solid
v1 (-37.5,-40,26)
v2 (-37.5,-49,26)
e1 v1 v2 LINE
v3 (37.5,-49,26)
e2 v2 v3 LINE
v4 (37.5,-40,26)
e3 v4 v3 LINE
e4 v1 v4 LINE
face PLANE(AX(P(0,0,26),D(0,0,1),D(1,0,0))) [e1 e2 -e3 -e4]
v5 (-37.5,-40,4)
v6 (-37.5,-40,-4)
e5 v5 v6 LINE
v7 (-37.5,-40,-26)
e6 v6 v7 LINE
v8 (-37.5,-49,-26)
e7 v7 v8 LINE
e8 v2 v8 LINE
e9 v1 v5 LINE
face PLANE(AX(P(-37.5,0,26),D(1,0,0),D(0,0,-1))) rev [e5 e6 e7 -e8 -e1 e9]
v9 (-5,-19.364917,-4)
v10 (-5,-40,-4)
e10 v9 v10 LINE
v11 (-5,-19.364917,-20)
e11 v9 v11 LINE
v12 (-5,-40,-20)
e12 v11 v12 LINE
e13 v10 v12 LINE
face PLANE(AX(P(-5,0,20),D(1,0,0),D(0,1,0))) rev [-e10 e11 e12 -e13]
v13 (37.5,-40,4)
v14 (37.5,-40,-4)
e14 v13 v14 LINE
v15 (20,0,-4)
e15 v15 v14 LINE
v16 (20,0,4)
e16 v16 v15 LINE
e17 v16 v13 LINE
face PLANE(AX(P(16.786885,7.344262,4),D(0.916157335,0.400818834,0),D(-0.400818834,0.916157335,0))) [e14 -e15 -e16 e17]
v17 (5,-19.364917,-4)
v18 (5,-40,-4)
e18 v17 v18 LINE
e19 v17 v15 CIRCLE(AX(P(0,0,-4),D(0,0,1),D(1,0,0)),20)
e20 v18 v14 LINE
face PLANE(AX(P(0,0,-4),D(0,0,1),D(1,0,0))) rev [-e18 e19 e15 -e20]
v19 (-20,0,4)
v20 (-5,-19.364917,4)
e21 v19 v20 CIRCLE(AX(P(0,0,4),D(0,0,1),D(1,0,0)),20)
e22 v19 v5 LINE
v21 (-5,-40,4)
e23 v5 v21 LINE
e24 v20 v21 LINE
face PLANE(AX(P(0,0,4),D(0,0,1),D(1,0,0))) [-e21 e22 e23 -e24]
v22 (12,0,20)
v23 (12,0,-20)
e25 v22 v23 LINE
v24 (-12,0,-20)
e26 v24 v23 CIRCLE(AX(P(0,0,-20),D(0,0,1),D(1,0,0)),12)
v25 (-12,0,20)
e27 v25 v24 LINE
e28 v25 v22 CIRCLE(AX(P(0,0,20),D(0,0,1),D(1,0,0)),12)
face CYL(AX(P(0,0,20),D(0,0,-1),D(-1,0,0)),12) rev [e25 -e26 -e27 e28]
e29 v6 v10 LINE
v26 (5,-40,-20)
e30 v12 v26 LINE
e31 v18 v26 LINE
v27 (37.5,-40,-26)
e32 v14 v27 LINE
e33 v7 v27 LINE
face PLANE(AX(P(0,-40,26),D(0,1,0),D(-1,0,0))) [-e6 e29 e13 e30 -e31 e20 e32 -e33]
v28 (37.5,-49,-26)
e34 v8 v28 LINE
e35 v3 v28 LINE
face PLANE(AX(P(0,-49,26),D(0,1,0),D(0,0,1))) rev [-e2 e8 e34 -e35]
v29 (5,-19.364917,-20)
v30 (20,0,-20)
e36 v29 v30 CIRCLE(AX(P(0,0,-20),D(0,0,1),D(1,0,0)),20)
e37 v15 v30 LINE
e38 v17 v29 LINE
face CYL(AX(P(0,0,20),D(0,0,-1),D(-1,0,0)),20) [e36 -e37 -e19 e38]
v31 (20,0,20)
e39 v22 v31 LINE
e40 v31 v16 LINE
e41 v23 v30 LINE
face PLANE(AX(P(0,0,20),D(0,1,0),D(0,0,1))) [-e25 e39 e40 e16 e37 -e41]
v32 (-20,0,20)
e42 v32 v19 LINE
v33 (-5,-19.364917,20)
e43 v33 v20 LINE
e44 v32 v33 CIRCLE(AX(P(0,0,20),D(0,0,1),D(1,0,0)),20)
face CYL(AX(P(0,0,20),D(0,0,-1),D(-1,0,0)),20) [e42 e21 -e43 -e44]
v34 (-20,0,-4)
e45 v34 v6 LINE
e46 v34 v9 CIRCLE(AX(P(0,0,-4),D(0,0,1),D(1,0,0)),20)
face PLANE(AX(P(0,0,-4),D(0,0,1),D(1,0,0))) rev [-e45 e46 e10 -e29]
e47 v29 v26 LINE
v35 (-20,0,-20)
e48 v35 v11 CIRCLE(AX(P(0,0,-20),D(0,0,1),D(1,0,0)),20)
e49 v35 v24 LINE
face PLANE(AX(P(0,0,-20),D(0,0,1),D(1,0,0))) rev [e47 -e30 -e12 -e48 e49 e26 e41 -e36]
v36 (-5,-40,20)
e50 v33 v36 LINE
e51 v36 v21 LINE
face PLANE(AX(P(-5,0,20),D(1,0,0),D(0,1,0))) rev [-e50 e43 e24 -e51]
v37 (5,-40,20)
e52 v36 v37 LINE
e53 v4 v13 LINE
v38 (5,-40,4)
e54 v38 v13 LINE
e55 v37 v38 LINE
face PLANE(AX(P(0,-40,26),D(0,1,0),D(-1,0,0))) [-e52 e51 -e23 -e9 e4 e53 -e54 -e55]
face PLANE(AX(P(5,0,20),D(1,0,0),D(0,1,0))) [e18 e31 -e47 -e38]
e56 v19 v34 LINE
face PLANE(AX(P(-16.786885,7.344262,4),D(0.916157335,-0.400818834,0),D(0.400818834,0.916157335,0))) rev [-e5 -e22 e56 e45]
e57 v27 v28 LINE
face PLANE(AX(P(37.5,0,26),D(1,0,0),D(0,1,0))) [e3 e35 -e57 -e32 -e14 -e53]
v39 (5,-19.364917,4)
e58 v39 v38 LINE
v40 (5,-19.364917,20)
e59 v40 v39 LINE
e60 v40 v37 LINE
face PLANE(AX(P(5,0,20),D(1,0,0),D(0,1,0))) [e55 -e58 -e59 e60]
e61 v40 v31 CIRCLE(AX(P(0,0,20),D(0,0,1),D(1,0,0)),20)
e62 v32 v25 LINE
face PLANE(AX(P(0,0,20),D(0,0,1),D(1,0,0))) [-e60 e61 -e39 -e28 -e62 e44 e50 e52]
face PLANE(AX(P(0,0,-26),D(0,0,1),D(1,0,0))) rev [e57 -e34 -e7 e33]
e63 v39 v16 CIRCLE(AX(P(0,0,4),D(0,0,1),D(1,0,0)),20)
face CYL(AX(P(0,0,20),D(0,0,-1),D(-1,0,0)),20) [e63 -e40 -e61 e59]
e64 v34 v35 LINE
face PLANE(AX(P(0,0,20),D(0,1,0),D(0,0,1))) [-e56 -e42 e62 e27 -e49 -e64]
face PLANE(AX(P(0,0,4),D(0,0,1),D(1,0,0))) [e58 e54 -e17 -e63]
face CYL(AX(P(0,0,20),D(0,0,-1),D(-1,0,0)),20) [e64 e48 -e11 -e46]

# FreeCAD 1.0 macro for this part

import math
import FreeCAD as App
import Part
import Sketcher
from FreeCAD import Vector

doc = App.newDocument("Part")
body = doc.addObject("PartDesign::Body", "Body")

# Sketch on XY plane
sketch1 = body.newObject("Sketcher::SketchObject", "Sketch")
sketch1.AttachmentSupport = (doc.getObject("XY_Plane"), [""])
sketch1.MapMode = "FlatFace"
sketch1.addGeometry(Part.LineSegment(Vector(-38, -40, 0), Vector(-38, -49, 0)), False)
sketch1.addGeometry(Part.LineSegment(Vector(-38, -49, 0), Vector(38, -49, 0)), False)
sketch1.addGeometry(Part.LineSegment(Vector(38, -49, 0), Vector(38, -40, 0)), False)
sketch1.addGeometry(Part.LineSegment(Vector(38, -40, 0), Vector(-38, -40, 0)), False)
sketch1.addConstraint(Sketcher.Constraint("Coincident", 0, 2, 1, 1))
sketch1.addConstraint(Sketcher.Constraint("Coincident", 1, 2, 2, 1))
sketch1.addConstraint(Sketcher.Constraint("Coincident", 2, 2, 3, 1))
sketch1.addConstraint(Sketcher.Constraint("Coincident", 3, 2, 0, 1))
sketch1.addConstraint(Sketcher.Constraint("Vertical", 0))
sketch1.addConstraint(Sketcher.Constraint("Horizontal", 1))
sketch1.addConstraint(Sketcher.Constraint("Vertical", 2))
sketch1.addConstraint(Sketcher.Constraint("Horizontal", 3))
sketch1.addConstraint(Sketcher.Constraint("DistanceX", 1, 1, 1, 2, 75.0))
sketch1.addConstraint(Sketcher.Constraint("DistanceY", 0, 2, 0, 1, 9.0))
sketch1.addConstraint(Sketcher.Constraint("DistanceY", 0, 2, -1, 1, 49.0))
sketch1.addConstraint(Sketcher.Constraint("DistanceX", 0, 2, -1, 1, 37.5))
pad1 = body.newObject("PartDesign::Pad", "Pad")
pad1.Profile = sketch1
pad1.Length = 52
pad1.Midplane = True

# Sketch on XY plane
sketch2 = body.newObject("Sketcher::SketchObject", "Sketch001")
sketch2.AttachmentSupport = (doc.getObject("XY_Plane"), [""])
sketch2.MapMode = "FlatFace"
sketch2.addGeometry(Part.LineSegment(Vector(-12, 0, 0), Vector(-20, 0, 0)), False)
sketch2.addGeometry(Part.ArcOfCircle(Part.Circle(Vector(0, 0, 0), Vector(0, 0, 1), 20), math.radians(180), math.radians(256)), False)
sketch2.addGeometry(Part.LineSegment(Vector(-5, -19, 0), Vector(-5, -40, 0)), False)
sketch2.addGeometry(Part.LineSegment(Vector(-5, -40, 0), Vector(5, -40, 0)), False)
sketch2.addGeometry(Part.LineSegment(Vector(5, -40, 0), Vector(5, -19, 0)), False)
sketch2.addGeometry(Part.ArcOfCircle(Part.Circle(Vector(0, 0, 0), Vector(0, 0, 1), 20), math.radians(-76), math.radians(0)), False)
sketch2.addGeometry(Part.LineSegment(Vector(20, 0, 0), Vector(12, 0, 0)), False)
sketch2.addGeometry(Part.ArcOfCircle(Part.Circle(Vector(0, 0, 0), Vector(0, 0, 1), 12), math.radians(180), math.radians(360)), False)
sketch2.addConstraint(Sketcher.Constraint("Coincident", 0, 2, 1, 1))
sketch2.addConstraint(Sketcher.Constraint("Coincident", 1, 2, 2, 1))
sketch2.addConstraint(Sketcher.Constraint("Coincident", 2, 2, 3, 1))
sketch2.addConstraint(Sketcher.Constraint("Coincident", 3, 2, 4, 1))
sketch2.addConstraint(Sketcher.Constraint("Coincident", 4, 2, 5, 1))
sketch2.addConstraint(Sketcher.Constraint("Coincident", 5, 2, 6, 1))
sketch2.addConstraint(Sketcher.Constraint("Coincident", 6, 2, 7, 2))
sketch2.addConstraint(Sketcher.Constraint("Coincident", 7, 1, 0, 1))
sketch2.addConstraint(Sketcher.Constraint("Horizontal", 0))
sketch2.addConstraint(Sketcher.Constraint("Vertical", 2))
sketch2.addConstraint(Sketcher.Constraint("Horizontal", 3))
sketch2.addConstraint(Sketcher.Constraint("Vertical", 4))
sketch2.addConstraint(Sketcher.Constraint("Horizontal", 6))
sketch2.addConstraint(Sketcher.Constraint("Coincident", 1, 3, -1, 1))
sketch2.addConstraint(Sketcher.Constraint("Coincident", 5, 3, -1, 1))
sketch2.addConstraint(Sketcher.Constraint("Coincident", 7, 3, -1, 1))
sketch2.addConstraint(Sketcher.Constraint("Equal", 1, 5))
sketch2.addConstraint(Sketcher.Constraint("PointOnObject", 0, 2, -1))
sketch2.addConstraint(Sketcher.Constraint("PointOnObject", 5, 2, -1))
sketch2.addConstraint(Sketcher.Constraint("Horizontal", 1, 2, 4, 2))
sketch2.addConstraint(Sketcher.Constraint("Radius", 1, 20.0))
sketch2.addConstraint(Sketcher.Constraint("Radius", 7, 12.0))
sketch2.addConstraint(Sketcher.Constraint("DistanceX", 3, 1, 3, 2, 10.0))
sketch2.addConstraint(Sketcher.Constraint("DistanceY", 2, 2, -1, 1, 40.0))
pad2 = body.newObject("PartDesign::Pad", "Pad001")
pad2.Profile = sketch2
pad2.Length = 40
pad2.Midplane = True

# Sketch on XY plane
sketch3 = body.newObject("Sketcher::SketchObject", "Sketch002")
sketch3.AttachmentSupport = (doc.getObject("XY_Plane"), [""])
sketch3.MapMode = "FlatFace"
sketch3.addGeometry(Part.LineSegment(Vector(38, -40, 0), Vector(20, 0, 0)), False)
sketch3.addGeometry(Part.ArcOfCircle(Part.Circle(Vector(0, 0, 0), Vector(0, 0, 1), 20), math.radians(-76), math.radians(0)), False)
sketch3.addGeometry(Part.LineSegment(Vector(5, -19, 0), Vector(5, -40, 0)), False)
sketch3.addGeometry(Part.LineSegment(Vector(5, -40, 0), Vector(38, -40, 0)), False)
sketch3.addGeometry(Part.ArcOfCircle(Part.Circle(Vector(0, 0, 0), Vector(0, 0, 1), 20), math.radians(180), math.radians(256)), False)
sketch3.addGeometry(Part.LineSegment(Vector(-20, 0, 0), Vector(-38, -40, 0)), False)
sketch3.addGeometry(Part.LineSegment(Vector(-38, -40, 0), Vector(-5, -40, 0)), False)
sketch3.addGeometry(Part.LineSegment(Vector(-5, -40, 0), Vector(-5, -19, 0)), False)
sketch3.addConstraint(Sketcher.Constraint("Coincident", 0, 2, 1, 2))
sketch3.addConstraint(Sketcher.Constraint("Coincident", 1, 1, 2, 1))
sketch3.addConstraint(Sketcher.Constraint("Coincident", 2, 2, 3, 1))
sketch3.addConstraint(Sketcher.Constraint("Coincident", 3, 2, 0, 1))
sketch3.addConstraint(Sketcher.Constraint("Coincident", 4, 1, 5, 1))
sketch3.addConstraint(Sketcher.Constraint("Coincident", 5, 2, 6, 1))
sketch3.addConstraint(Sketcher.Constraint("Coincident", 6, 2, 7, 1))
sketch3.addConstraint(Sketcher.Constraint("Coincident", 7, 2, 4, 2))
sketch3.addConstraint(Sketcher.Constraint("Vertical", 2))
sketch3.addConstraint(Sketcher.Constraint("Horizontal", 3))
sketch3.addConstraint(Sketcher.Constraint("Horizontal", 6))
sketch3.addConstraint(Sketcher.Constraint("Vertical", 7))
sketch3.addConstraint(Sketcher.Constraint("Coincident", 1, 3, -1, 1))
sketch3.addConstraint(Sketcher.Constraint("Coincident", 4, 3, -1, 1))
sketch3.addConstraint(Sketcher.Constraint("Equal", 1, 4))
sketch3.addConstraint(Sketcher.Constraint("Symmetric", 3, 2, 5, 2, -2))
sketch3.addConstraint(Sketcher.Constraint("PointOnObject", 0, 2, -1))
sketch3.addConstraint(Sketcher.Constraint("PointOnObject", 4, 1, -1))
sketch3.addConstraint(Sketcher.Constraint("Horizontal", 1, 1, 7, 2))
sketch3.addConstraint(Sketcher.Constraint("Radius", 1, 20.0))
sketch3.addConstraint(Sketcher.Constraint("DistanceX", 3, 1, 3, 2, 32.5))
sketch3.addConstraint(Sketcher.Constraint("DistanceX", -1, 1, 1, 1, 5.0))
sketch3.addConstraint(Sketcher.Constraint("DistanceY", 2, 2, -1, 1, 40.0))
pad3 = body.newObject("PartDesign::Pad", "Pad002")
pad3.Profile = sketch3
pad3.Length = 8
pad3.Midplane = True

doc.recompute()
